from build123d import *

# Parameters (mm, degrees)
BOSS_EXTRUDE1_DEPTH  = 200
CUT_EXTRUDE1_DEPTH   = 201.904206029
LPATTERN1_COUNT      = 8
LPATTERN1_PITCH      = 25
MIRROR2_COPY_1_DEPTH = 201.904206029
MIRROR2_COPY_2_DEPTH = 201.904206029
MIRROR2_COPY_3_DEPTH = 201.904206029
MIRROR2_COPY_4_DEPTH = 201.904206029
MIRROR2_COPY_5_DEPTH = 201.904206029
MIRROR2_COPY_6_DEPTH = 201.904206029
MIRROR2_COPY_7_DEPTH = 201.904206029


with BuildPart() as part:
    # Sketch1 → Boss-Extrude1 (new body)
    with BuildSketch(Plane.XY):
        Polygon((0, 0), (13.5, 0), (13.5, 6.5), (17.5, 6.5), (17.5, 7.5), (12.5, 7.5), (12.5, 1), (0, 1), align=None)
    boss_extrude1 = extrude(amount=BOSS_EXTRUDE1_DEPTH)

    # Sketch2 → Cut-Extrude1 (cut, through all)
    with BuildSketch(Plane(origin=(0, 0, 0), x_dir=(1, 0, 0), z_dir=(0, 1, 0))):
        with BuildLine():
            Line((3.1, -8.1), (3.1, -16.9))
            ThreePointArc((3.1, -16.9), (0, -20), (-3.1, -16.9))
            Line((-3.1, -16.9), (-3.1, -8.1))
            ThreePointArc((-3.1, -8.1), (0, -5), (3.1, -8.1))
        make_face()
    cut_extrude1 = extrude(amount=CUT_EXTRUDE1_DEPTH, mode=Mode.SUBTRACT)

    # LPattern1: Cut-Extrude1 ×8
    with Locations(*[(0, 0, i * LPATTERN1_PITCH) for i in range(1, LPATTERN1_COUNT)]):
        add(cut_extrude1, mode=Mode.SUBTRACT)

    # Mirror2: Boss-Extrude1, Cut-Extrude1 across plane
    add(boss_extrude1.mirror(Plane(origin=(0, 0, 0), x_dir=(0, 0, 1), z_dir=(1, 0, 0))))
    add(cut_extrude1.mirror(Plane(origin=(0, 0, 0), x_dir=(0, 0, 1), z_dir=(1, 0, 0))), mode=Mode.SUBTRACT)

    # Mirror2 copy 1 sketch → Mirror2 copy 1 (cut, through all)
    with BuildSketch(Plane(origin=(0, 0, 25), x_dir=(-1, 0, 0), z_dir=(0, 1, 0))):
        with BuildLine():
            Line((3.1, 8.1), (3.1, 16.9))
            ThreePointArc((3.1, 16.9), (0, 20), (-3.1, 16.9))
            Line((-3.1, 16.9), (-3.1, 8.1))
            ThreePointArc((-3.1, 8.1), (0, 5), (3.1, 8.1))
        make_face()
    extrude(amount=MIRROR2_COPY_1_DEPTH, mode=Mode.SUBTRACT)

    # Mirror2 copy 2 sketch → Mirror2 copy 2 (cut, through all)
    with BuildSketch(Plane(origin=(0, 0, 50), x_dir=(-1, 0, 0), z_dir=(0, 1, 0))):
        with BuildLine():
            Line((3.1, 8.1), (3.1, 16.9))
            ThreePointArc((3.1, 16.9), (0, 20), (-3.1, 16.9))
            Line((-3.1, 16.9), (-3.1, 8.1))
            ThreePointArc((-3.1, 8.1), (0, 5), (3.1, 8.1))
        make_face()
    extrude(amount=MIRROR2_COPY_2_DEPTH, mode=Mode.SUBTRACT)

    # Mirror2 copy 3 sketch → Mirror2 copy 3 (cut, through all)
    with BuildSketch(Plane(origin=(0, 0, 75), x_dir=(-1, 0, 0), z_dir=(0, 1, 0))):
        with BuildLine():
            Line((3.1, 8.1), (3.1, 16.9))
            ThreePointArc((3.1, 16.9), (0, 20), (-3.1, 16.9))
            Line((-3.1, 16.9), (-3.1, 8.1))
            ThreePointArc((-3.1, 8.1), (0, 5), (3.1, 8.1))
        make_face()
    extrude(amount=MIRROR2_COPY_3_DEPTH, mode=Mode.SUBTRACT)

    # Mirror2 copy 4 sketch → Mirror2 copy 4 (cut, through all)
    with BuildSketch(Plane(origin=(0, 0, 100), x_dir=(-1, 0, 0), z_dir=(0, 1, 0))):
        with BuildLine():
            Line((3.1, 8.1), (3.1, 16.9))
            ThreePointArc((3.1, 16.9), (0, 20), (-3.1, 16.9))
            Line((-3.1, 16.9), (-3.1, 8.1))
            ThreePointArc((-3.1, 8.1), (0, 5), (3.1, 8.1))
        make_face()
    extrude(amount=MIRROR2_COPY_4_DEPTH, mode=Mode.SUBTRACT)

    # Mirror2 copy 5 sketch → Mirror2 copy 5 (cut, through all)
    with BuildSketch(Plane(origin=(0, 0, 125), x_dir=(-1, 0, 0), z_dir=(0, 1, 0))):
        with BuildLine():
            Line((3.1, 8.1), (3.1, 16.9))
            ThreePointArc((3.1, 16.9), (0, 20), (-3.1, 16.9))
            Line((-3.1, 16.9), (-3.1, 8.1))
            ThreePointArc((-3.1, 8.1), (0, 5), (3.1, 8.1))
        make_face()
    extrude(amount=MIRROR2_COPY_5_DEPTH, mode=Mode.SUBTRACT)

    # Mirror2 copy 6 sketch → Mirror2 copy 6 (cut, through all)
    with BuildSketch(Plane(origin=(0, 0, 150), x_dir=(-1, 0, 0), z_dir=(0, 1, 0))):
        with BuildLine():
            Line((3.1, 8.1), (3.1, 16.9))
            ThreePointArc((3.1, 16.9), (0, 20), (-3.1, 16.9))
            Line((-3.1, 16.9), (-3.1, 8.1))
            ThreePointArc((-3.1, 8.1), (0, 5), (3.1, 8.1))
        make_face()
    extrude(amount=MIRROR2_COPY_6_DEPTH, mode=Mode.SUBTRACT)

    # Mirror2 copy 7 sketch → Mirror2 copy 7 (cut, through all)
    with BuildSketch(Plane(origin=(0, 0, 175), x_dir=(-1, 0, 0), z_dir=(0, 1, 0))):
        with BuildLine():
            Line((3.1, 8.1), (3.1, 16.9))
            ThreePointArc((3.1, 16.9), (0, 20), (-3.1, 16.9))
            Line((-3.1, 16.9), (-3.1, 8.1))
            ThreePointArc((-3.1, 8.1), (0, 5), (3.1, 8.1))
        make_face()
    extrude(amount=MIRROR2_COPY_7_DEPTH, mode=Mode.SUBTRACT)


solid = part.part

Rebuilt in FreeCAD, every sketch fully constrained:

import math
import FreeCAD as App
import Part
import Sketcher
Q = App.Units.Quantity


def add_polygon(sketch, points):
    """Adds a closed chain of lines whose ends are joined by coincident constraints."""
    first, n = sketch.GeometryCount, len(points)
    for a, b in zip(points, points[1:] + points[:1]):
        sketch.addGeometry(Part.LineSegment(App.Vector(*a, 0), App.Vector(*b, 0)), False)
    for i in range(n):
        sketch.addConstraint(Sketcher.Constraint("Coincident", first + i, 2, first + (i + 1) % n, 1))

doc = App.newDocument("Part")
body = doc.addObject("PartDesign::Body", "Body")

# Sketch on XY plane
sketch1 = body.newObject("Sketcher::SketchObject", "Sketch")
sketch1.AttachmentSupport = (doc.getObject("XY_Plane"), [""])
sketch1.MapMode = "FlatFace"
add_polygon(sketch1, [(0, 0), (13.5, 0), (13.5, 6.5), (17.5, 6.5), (17.5, 7.5), (12.5, 7.5), (12.5, 1), (0, 1)])  # lines 0-7
sketch1.addConstraint([
    Sketcher.Constraint("Horizontal", 0),
    Sketcher.Constraint("Vertical", 1),
    Sketcher.Constraint("Horizontal", 2),
    Sketcher.Constraint("Vertical", 3),
    Sketcher.Constraint("Horizontal", 4),
    Sketcher.Constraint("Vertical", 5),
    Sketcher.Constraint("Horizontal", 6),
    Sketcher.Constraint("Vertical", 7),
    Sketcher.Constraint("Coincident", 7, 2, -1, 1),
    Sketcher.Constraint("Equal", 1, 5),
    Sketcher.Constraint("DistanceX", 2, 1, 2, 2, Q("4 mm")),
    Sketcher.Constraint("DistanceX", 4, 2, 4, 1, Q("5 mm")),
    Sketcher.Constraint("DistanceY", 3, 1, 3, 2, Q("1 mm")),
    Sketcher.Constraint("DistanceX", 0, 1, 0, 2, Q("13.5 mm")),
    Sketcher.Constraint("DistanceY", 1, 1, 1, 2, Q("6.5 mm")),
])
pad1 = body.newObject("PartDesign::Pad", "Pad")
pad1.Profile = sketch1
pad1.Length = 200

# Sketch on XZ plane
sketch2 = body.newObject("Sketcher::SketchObject", "Sketch001")
sketch2.AttachmentSupport = (doc.getObject("XZ_Plane"), [""])
sketch2.MapMode = "FlatFace"
sketch2.addGeometry([
    Part.LineSegment(App.Vector(3.1, 16.9, 0), App.Vector(3.1, 8.1, 0)),
    Part.ArcOfCircle(Part.Circle(App.Vector(0, 8.1, 0), App.Vector(0, 0, 1), 3.1), math.radians(180), math.radians(360)),
    Part.LineSegment(App.Vector(-3.1, 8.1, 0), App.Vector(-3.1, 16.9, 0)),
    Part.ArcOfCircle(Part.Circle(App.Vector(0, 16.9, 0), App.Vector(0, 0, 1), 3.1), math.radians(0), math.radians(180)),
], False)
sketch2.addConstraint([
    Sketcher.Constraint("Tangent", 0, 2, 1, 2),
    Sketcher.Constraint("Tangent", 1, 1, 2, 1),
    Sketcher.Constraint("Tangent", 2, 2, 3, 2),
    Sketcher.Constraint("Tangent", 3, 1, 0, 1),
    Sketcher.Constraint("Vertical", 0),
    Sketcher.Constraint("Vertical", 2),
    Sketcher.Constraint("PointOnObject", 1, 3, -2),
    Sketcher.Constraint("Radius", 1, Q("3.1 mm")),
    Sketcher.Constraint("DistanceY", 0, 2, 0, 1, Q("8.8 mm")),
    Sketcher.Constraint("DistanceY", -1, 1, 1, 3, Q("8.1 mm")),
])
pocket1 = body.newObject("PartDesign::Pocket", "Pocket")
pocket1.Profile = sketch2
pocket1.Type = "ThroughAll"
doc.recompute()

linearpattern = body.newObject("PartDesign::LinearPattern", "LinearPattern")
linearpattern.Originals = [pocket1]
linearpattern.Direction = (doc.getObject("Z_Axis"), [""])
linearpattern.Mode = "offset"
linearpattern.Offset = 25
linearpattern.Occurrences = 8
body.Tip = linearpattern
doc.recompute()

mirrored = body.newObject("PartDesign::Mirrored", "Mirrored")
mirrored.Originals = [pad1, pocket1]
mirrored.MirrorPlane = (doc.getObject("YZ_Plane"), [""])
body.Tip = mirrored

# Sketch on XZ plane
sketch3 = body.newObject("Sketcher::SketchObject", "Sketch002")
sketch3.AttachmentSupport = (doc.getObject("XZ_Plane"), [""])
sketch3.MapMode = "FlatFace"
sketch3.addGeometry([
    Part.LineSegment(App.Vector(-3.1, 33.1, 0), App.Vector(-3.1, 41.9, 0)),
    Part.ArcOfCircle(Part.Circle(App.Vector(0, 41.9, 0), App.Vector(0, 0, 1), 3.1), math.radians(0), math.radians(180)),
    Part.LineSegment(App.Vector(3.1, 41.9, 0), App.Vector(3.1, 33.1, 0)),
    Part.ArcOfCircle(Part.Circle(App.Vector(0, 33.1, 0), App.Vector(0, 0, 1), 3.1), math.radians(180), math.radians(360)),
], False)
sketch3.addConstraint([
    Sketcher.Constraint("Tangent", 0, 2, 1, 2),
    Sketcher.Constraint("Tangent", 1, 1, 2, 1),
    Sketcher.Constraint("Tangent", 2, 2, 3, 2),
    Sketcher.Constraint("Tangent", 3, 1, 0, 1),
    Sketcher.Constraint("Vertical", 0),
    Sketcher.Constraint("Vertical", 2),
    Sketcher.Constraint("PointOnObject", 1, 3, -2),
    Sketcher.Constraint("Radius", 1, Q("3.1 mm")),
    Sketcher.Constraint("DistanceY", 0, 1, 0, 2, Q("8.8 mm")),
    Sketcher.Constraint("DistanceY", -1, 1, 1, 3, Q("41.9 mm")),
])
pocket2 = body.newObject("PartDesign::Pocket", "Pocket001")
pocket2.Profile = sketch3
pocket2.Type = "ThroughAll"

# Sketch on XZ plane
sketch4 = body.newObject("Sketcher::SketchObject", "Sketch003")
sketch4.AttachmentSupport = (doc.getObject("XZ_Plane"), [""])
sketch4.MapMode = "FlatFace"
sketch4.addGeometry([
    Part.LineSegment(App.Vector(-3.1, 58.1, 0), App.Vector(-3.1, 66.9, 0)),
    Part.ArcOfCircle(Part.Circle(App.Vector(0, 66.9, 0), App.Vector(0, 0, 1), 3.1), math.radians(0), math.radians(180)),
    Part.LineSegment(App.Vector(3.1, 66.9, 0), App.Vector(3.1, 58.1, 0)),
    Part.ArcOfCircle(Part.Circle(App.Vector(0, 58.1, 0), App.Vector(0, 0, 1), 3.1), math.radians(180), math.radians(360)),
], False)
sketch4.addConstraint([
    Sketcher.Constraint("Tangent", 0, 2, 1, 2),
    Sketcher.Constraint("Tangent", 1, 1, 2, 1),
    Sketcher.Constraint("Tangent", 2, 2, 3, 2),
    Sketcher.Constraint("Tangent", 3, 1, 0, 1),
    Sketcher.Constraint("Vertical", 0),
    Sketcher.Constraint("Vertical", 2),
    Sketcher.Constraint("PointOnObject", 1, 3, -2),
    Sketcher.Constraint("Radius", 1, Q("3.1 mm")),
    Sketcher.Constraint("DistanceY", 0, 1, 0, 2, Q("8.8 mm")),
    Sketcher.Constraint("DistanceY", -1, 1, 1, 3, Q("66.9 mm")),
])
pocket3 = body.newObject("PartDesign::Pocket", "Pocket002")
pocket3.Profile = sketch4
pocket3.Type = "ThroughAll"

# Sketch on XZ plane
sketch5 = body.newObject("Sketcher::SketchObject", "Sketch004")
sketch5.AttachmentSupport = (doc.getObject("XZ_Plane"), [""])
sketch5.MapMode = "FlatFace"
sketch5.addGeometry([
    Part.LineSegment(App.Vector(-3.1, 83.1, 0), App.Vector(-3.1, 91.9, 0)),
    Part.ArcOfCircle(Part.Circle(App.Vector(0, 91.9, 0), App.Vector(0, 0, 1), 3.1), math.radians(0), math.radians(180)),
    Part.LineSegment(App.Vector(3.1, 91.9, 0), App.Vector(3.1, 83.1, 0)),
    Part.ArcOfCircle(Part.Circle(App.Vector(0, 83.1, 0), App.Vector(0, 0, 1), 3.1), math.radians(180), math.radians(360)),
], False)
sketch5.addConstraint([
    Sketcher.Constraint("Tangent", 0, 2, 1, 2),
    Sketcher.Constraint("Tangent", 1, 1, 2, 1),
    Sketcher.Constraint("Tangent", 2, 2, 3, 2),
    Sketcher.Constraint("Tangent", 3, 1, 0, 1),
    Sketcher.Constraint("Vertical", 0),
    Sketcher.Constraint("Vertical", 2),
    Sketcher.Constraint("PointOnObject", 1, 3, -2),
    Sketcher.Constraint("Radius", 1, Q("3.1 mm")),
    Sketcher.Constraint("DistanceY", 0, 1, 0, 2, Q("8.8 mm")),
    Sketcher.Constraint("DistanceY", -1, 1, 1, 3, Q("91.9 mm")),
])
pocket4 = body.newObject("PartDesign::Pocket", "Pocket003")
pocket4.Profile = sketch5
pocket4.Type = "ThroughAll"

# Sketch on XZ plane
sketch6 = body.newObject("Sketcher::SketchObject", "Sketch005")
sketch6.AttachmentSupport = (doc.getObject("XZ_Plane"), [""])
sketch6.MapMode = "FlatFace"
sketch6.addGeometry([
    Part.LineSegment(App.Vector(-3.1, 108.1, 0), App.Vector(-3.1, 116.9, 0)),
    Part.ArcOfCircle(Part.Circle(App.Vector(0, 116.9, 0), App.Vector(0, 0, 1), 3.1), math.radians(0), math.radians(180)),
    Part.LineSegment(App.Vector(3.1, 116.9, 0), App.Vector(3.1, 108.1, 0)),
    Part.ArcOfCircle(Part.Circle(App.Vector(0, 108.1, 0), App.Vector(0, 0, 1), 3.1), math.radians(180), math.radians(360)),
], False)
sketch6.addConstraint([
    Sketcher.Constraint("Tangent", 0, 2, 1, 2),
    Sketcher.Constraint("Tangent", 1, 1, 2, 1),
    Sketcher.Constraint("Tangent", 2, 2, 3, 2),
    Sketcher.Constraint("Tangent", 3, 1, 0, 1),
    Sketcher.Constraint("Vertical", 0),
    Sketcher.Constraint("Vertical", 2),
    Sketcher.Constraint("PointOnObject", 1, 3, -2),
    Sketcher.Constraint("Radius", 1, Q("3.1 mm")),
    Sketcher.Constraint("DistanceY", 0, 1, 0, 2, Q("8.8 mm")),
    Sketcher.Constraint("DistanceY", -1, 1, 1, 3, Q("116.9 mm")),
])
pocket5 = body.newObject("PartDesign::Pocket", "Pocket004")
pocket5.Profile = sketch6
pocket5.Type = "ThroughAll"

# Sketch on XZ plane
sketch7 = body.newObject("Sketcher::SketchObject", "Sketch006")
sketch7.AttachmentSupport = (doc.getObject("XZ_Plane"), [""])
sketch7.MapMode = "FlatFace"
sketch7.addGeometry([
    Part.LineSegment(App.Vector(-3.1, 133.1, 0), App.Vector(-3.1, 141.9, 0)),
    Part.ArcOfCircle(Part.Circle(App.Vector(0, 141.9, 0), App.Vector(0, 0, 1), 3.1), math.radians(0), math.radians(180)),
    Part.LineSegment(App.Vector(3.1, 141.9, 0), App.Vector(3.1, 133.1, 0)),
    Part.ArcOfCircle(Part.Circle(App.Vector(0, 133.1, 0), App.Vector(0, 0, 1), 3.1), math.radians(180), math.radians(360)),
], False)
sketch7.addConstraint([
    Sketcher.Constraint("Tangent", 0, 2, 1, 2),
    Sketcher.Constraint("Tangent", 1, 1, 2, 1),
    Sketcher.Constraint("Tangent", 2, 2, 3, 2),
    Sketcher.Constraint("Tangent", 3, 1, 0, 1),
    Sketcher.Constraint("Vertical", 0),
    Sketcher.Constraint("Vertical", 2),
    Sketcher.Constraint("PointOnObject", 1, 3, -2),
    Sketcher.Constraint("Radius", 1, Q("3.1 mm")),
    Sketcher.Constraint("DistanceY", 0, 1, 0, 2, Q("8.8 mm")),
    Sketcher.Constraint("DistanceY", -1, 1, 1, 3, Q("141.9 mm")),
])
pocket6 = body.newObject("PartDesign::Pocket", "Pocket005")
pocket6.Profile = sketch7
pocket6.Type = "ThroughAll"

# Sketch on XZ plane
sketch8 = body.newObject("Sketcher::SketchObject", "Sketch007")
sketch8.AttachmentSupport = (doc.getObject("XZ_Plane"), [""])
sketch8.MapMode = "FlatFace"
sketch8.addGeometry([
    Part.LineSegment(App.Vector(-3.1, 158.1, 0), App.Vector(-3.1, 166.9, 0)),
    Part.ArcOfCircle(Part.Circle(App.Vector(0, 166.9, 0), App.Vector(0, 0, 1), 3.1), math.radians(0), math.radians(180)),
    Part.LineSegment(App.Vector(3.1, 166.9, 0), App.Vector(3.1, 158.1, 0)),
    Part.ArcOfCircle(Part.Circle(App.Vector(0, 158.1, 0), App.Vector(0, 0, 1), 3.1), math.radians(180), math.radians(360)),
], False)
sketch8.addConstraint([
    Sketcher.Constraint("Tangent", 0, 2, 1, 2),
    Sketcher.Constraint("Tangent", 1, 1, 2, 1),
    Sketcher.Constraint("Tangent", 2, 2, 3, 2),
    Sketcher.Constraint("Tangent", 3, 1, 0, 1),
    Sketcher.Constraint("Vertical", 0),
    Sketcher.Constraint("Vertical", 2),
    Sketcher.Constraint("PointOnObject", 1, 3, -2),
    Sketcher.Constraint("Radius", 1, Q("3.1 mm")),
    Sketcher.Constraint("DistanceY", 0, 1, 0, 2, Q("8.8 mm")),
    Sketcher.Constraint("DistanceY", -1, 1, 1, 3, Q("166.9 mm")),
])
pocket7 = body.newObject("PartDesign::Pocket", "Pocket006")
pocket7.Profile = sketch8
pocket7.Type = "ThroughAll"

# Sketch on XZ plane
sketch9 = body.newObject("Sketcher::SketchObject", "Sketch008")
sketch9.AttachmentSupport = (doc.getObject("XZ_Plane"), [""])
sketch9.MapMode = "FlatFace"
sketch9.addGeometry([
    Part.LineSegment(App.Vector(-3.1, 183.1, 0), App.Vector(-3.1, 191.9, 0)),
    Part.ArcOfCircle(Part.Circle(App.Vector(0, 191.9, 0), App.Vector(0, 0, 1), 3.1), math.radians(0), math.radians(180)),
    Part.LineSegment(App.Vector(3.1, 191.9, 0), App.Vector(3.1, 183.1, 0)),
    Part.ArcOfCircle(Part.Circle(App.Vector(0, 183.1, 0), App.Vector(0, 0, 1), 3.1), math.radians(180), math.radians(360)),
], False)
sketch9.addConstraint([
    Sketcher.Constraint("Tangent", 0, 2, 1, 2),
    Sketcher.Constraint("Tangent", 1, 1, 2, 1),
    Sketcher.Constraint("Tangent", 2, 2, 3, 2),
    Sketcher.Constraint("Tangent", 3, 1, 0, 1),
    Sketcher.Constraint("Vertical", 0),
    Sketcher.Constraint("Vertical", 2),
    Sketcher.Constraint("PointOnObject", 1, 3, -2),
    Sketcher.Constraint("Radius", 1, Q("3.1 mm")),
    Sketcher.Constraint("DistanceY", 0, 1, 0, 2, Q("8.8 mm")),
    Sketcher.Constraint("DistanceY", -1, 1, 1, 3, Q("191.9 mm")),
])
pocket8 = body.newObject("PartDesign::Pocket", "Pocket007")
pocket8.Profile = sketch9
pocket8.Type = "ThroughAll"

doc.recompute()
